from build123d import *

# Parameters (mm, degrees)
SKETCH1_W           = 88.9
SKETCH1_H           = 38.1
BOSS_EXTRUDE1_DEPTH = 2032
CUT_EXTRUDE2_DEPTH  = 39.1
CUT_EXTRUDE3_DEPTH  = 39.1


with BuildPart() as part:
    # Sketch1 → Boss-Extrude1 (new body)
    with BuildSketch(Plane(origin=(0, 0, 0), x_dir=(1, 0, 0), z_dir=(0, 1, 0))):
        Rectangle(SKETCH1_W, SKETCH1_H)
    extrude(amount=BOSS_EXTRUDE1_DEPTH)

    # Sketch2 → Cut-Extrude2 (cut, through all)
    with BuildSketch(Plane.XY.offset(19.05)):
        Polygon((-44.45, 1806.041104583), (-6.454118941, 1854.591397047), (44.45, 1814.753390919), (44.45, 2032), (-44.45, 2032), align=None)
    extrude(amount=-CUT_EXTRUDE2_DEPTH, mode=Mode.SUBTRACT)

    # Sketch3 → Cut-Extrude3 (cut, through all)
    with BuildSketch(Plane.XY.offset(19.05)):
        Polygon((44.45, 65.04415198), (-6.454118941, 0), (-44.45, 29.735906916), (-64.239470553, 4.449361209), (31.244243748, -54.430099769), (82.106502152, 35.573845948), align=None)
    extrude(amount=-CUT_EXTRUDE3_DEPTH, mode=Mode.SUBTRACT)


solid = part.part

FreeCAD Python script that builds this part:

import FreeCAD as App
import Part
import Sketcher
from FreeCAD import Vector
Q = App.Units.Quantity


def add_polygon(sketch, points):
    """Adds a closed chain of lines whose ends are joined by coincident constraints."""
    first, n = sketch.GeometryCount, len(points)
    for a, b in zip(points, points[1:] + points[:1]):
        sketch.addGeometry(Part.LineSegment(App.Vector(*a, 0), App.Vector(*b, 0)), False)
    for i in range(n):
        sketch.addConstraint(Sketcher.Constraint("Coincident", first + i, 2, first + (i + 1) % n, 1))

doc = App.newDocument("Part")
params = doc.addObject("Spreadsheet::Sheet", "Params")
for row, (alias, value) in enumerate([
    ("sketch1_width", "3.5 in"),
    ("sketch1_height", "1.5 in"),
    ("pad1_length", "80 in"),
    ("sketch2_width", "3.5 in"),
], start=1):
    params.set(f"A{row}", alias)
    params.set(f"B{row}", "=" + value)
    params.setAlias(f"B{row}", alias)

body = doc.addObject("PartDesign::Body", "Body")

sketch1 = body.newObject("Sketcher::SketchObject", "Sketch")
sketch1.AttachmentSupport = (doc.getObject("XZ_Plane"), [""])
sketch1.MapMode = "FlatFace"
add_polygon(sketch1, [(-44, -19), (-44, 19), (44, 19), (44, -19)])
sketch1.addConstraint([
    Sketcher.Constraint("Vertical", 0),
    Sketcher.Constraint("Horizontal", 1),
    Sketcher.Constraint("Vertical", 2),
    Sketcher.Constraint("Horizontal", 3),
    Sketcher.Constraint("Symmetric", 0, 2, 2, 2, -1, 1),
    Sketcher.Constraint("DistanceX", 1, 1, 1, 2, Q("3.5 in")),
    Sketcher.Constraint("DistanceY", 0, 1, 0, 2, Q("1.5 in")),
])
sketch1.setExpression("Constraints[9]", "Params.sketch1_width")
sketch1.setExpression("Constraints[10]", "Params.sketch1_height")
pad1 = body.newObject("PartDesign::Pad", "Pad")
pad1.Profile = sketch1
pad1.setExpression("Length", "Params.pad1_length")
pad1.Reversed = True

sketch2 = body.newObject("Sketcher::SketchObject", "Sketch001")
sketch2.AttachmentSupport = (doc.getObject("XY_Plane"), [""])
sketch2.MapMode = "FlatFace"
sketch2.AttachmentOffset = App.Placement(Vector(0, 0, 0.75 * 25.4), App.Rotation())
add_polygon(sketch2, [(-44, 1806), (-6, 1855), (44, 1815), (44, 2032), (-44, 2032)])
sketch2.addConstraint([
    Sketcher.Constraint("Vertical", 2),
    Sketcher.Constraint("Horizontal", 3),
    Sketcher.Constraint("Vertical", 4),
    Sketcher.Constraint("Perpendicular", 0, 1),
    Sketcher.Constraint("DistanceX", 3, 2, 3, 1, Q("3.5 in")),
    Sketcher.Constraint("DistanceY", -1, 1, 2, 2, Q("80 in")),
    Sketcher.Constraint("DistanceX", -1, 1, 1, 2, Q("1.75 in")),
    Sketcher.Constraint("DistanceY", 2, 1, 2, 2, Q("217.246609 mm")),
    Sketcher.Constraint("Distance", 1, Q("64.639741 mm")),
    Sketcher.Constraint("DistanceY", 4, 2, 4, 1, Q("225.958895 mm")),
])
sketch2.setExpression("Constraints[9]", "Params.sketch2_width")
pocket1 = body.newObject("PartDesign::Pocket", "Pocket")
pocket1.Profile = sketch2
pocket1.Type = "ThroughAll"

sketch3 = body.newObject("Sketcher::SketchObject", "Sketch002")
sketch3.AttachmentSupport = (doc.getObject("XY_Plane"), [""])
sketch3.MapMode = "FlatFace"
sketch3.AttachmentOffset = App.Placement(Vector(0, 0, 0.75 * 25.4), App.Rotation())
add_polygon(sketch3, [(44, 65), (-6, 0), (-44, 30), (-64, 4), (31, -54), (82, 36)])
sketch3.addConstraint([
    Sketcher.Constraint("PointOnObject", 0, 2, -1),
    Sketcher.Constraint("Perpendicular", 0, 1),
    Sketcher.Constraint("Perpendicular", 1, 2),
    Sketcher.Constraint("Perpendicular", 2, 5),
    Sketcher.Constraint("DistanceX", 1, 2, 5, 2, Q("3.5 in")),
    Sketcher.Constraint("DistanceX", 1, 2, -1, 1, Q("1.75 in")),
    Sketcher.Constraint("DistanceY", 3, 2, -1, 1, Q("54.4301 mm")),
    Sketcher.Constraint("Distance", 1, Q("48.248431 mm")),
    Sketcher.Constraint("Distance", 3, Q("112.17812 mm")),
    Sketcher.Constraint("DistanceX", 0, 2, -1, 1, Q("6.454119 mm")),
    Sketcher.Constraint("DistanceX", 2, 2, -1, 1, Q("64.239471 mm")),
    Sketcher.Constraint("DistanceX", 0, 2, 4, 2, Q("88.560621 mm")),
])
pocket2 = body.newObject("PartDesign::Pocket", "Pocket001")
pocket2.Profile = sketch3
pocket2.Type = "ThroughAll"

doc.recompute()
